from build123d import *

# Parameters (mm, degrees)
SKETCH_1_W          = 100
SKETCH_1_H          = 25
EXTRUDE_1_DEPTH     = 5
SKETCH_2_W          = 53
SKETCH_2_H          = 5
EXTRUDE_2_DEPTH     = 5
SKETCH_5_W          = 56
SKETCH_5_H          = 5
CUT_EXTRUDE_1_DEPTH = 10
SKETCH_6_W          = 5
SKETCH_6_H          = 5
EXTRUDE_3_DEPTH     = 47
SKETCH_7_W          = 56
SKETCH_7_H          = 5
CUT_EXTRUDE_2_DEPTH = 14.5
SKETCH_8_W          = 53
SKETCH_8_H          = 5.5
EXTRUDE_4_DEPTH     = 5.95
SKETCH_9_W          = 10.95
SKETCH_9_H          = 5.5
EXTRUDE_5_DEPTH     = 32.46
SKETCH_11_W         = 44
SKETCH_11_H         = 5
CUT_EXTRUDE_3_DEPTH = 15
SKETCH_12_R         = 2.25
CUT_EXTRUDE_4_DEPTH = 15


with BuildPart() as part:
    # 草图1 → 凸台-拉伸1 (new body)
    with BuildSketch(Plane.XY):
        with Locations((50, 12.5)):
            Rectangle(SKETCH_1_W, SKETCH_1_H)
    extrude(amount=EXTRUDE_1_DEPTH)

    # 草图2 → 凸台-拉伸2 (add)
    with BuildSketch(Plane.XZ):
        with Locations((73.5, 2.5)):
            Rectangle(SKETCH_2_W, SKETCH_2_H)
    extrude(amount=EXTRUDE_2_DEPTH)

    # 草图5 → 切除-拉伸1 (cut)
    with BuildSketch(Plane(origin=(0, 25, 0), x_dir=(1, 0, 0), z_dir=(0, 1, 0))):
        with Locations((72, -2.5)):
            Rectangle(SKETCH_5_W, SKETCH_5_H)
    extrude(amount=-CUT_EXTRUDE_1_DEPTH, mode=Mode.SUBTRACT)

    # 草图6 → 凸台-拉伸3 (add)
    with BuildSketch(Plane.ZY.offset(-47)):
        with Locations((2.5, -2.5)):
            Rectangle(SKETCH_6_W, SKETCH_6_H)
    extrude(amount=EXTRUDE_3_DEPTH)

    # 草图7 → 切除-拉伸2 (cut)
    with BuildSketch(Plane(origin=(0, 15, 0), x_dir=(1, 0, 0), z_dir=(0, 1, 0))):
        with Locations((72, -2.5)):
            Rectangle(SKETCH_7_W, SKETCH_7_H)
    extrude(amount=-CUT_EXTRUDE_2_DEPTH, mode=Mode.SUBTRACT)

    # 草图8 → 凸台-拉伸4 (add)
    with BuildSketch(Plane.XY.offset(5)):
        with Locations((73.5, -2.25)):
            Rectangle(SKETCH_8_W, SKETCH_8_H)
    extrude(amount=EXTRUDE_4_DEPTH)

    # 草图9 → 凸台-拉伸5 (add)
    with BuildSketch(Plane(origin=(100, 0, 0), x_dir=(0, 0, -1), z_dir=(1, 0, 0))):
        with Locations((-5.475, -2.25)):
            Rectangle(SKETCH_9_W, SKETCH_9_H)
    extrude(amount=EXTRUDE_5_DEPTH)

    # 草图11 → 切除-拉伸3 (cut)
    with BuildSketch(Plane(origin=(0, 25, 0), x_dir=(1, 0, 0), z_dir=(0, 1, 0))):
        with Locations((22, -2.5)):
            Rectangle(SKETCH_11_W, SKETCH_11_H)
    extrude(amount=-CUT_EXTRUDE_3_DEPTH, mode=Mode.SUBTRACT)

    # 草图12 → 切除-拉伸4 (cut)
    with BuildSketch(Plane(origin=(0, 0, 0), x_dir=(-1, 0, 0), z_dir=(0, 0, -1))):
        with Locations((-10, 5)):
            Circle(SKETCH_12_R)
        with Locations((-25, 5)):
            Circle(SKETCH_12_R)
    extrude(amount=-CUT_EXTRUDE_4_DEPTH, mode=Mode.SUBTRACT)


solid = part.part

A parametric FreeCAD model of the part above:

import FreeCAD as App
import Part
import Sketcher
from FreeCAD import Vector
Q = App.Units.Quantity

doc = App.newDocument("Part")
body = doc.addObject("PartDesign::Body", "Body")

# Sketch on XY plane
sketch1 = body.newObject("Sketcher::SketchObject", "Sketch")
sketch1.AttachmentSupport = (doc.getObject("XY_Plane"), [""])
sketch1.MapMode = "FlatFace"
sketch1.addGeometry(Part.LineSegment(Vector(0, 25, 0), Vector(0, 0, 0)), False)
sketch1.addGeometry(Part.LineSegment(Vector(0, 0, 0), Vector(100, 0, 0)), False)
sketch1.addGeometry(Part.LineSegment(Vector(100, 0, 0), Vector(100, 25, 0)), False)
sketch1.addGeometry(Part.LineSegment(Vector(100, 25, 0), Vector(0, 25, 0)), False)
sketch1.addConstraint(Sketcher.Constraint("Coincident", 0, 2, 1, 1))
sketch1.addConstraint(Sketcher.Constraint("Coincident", 1, 2, 2, 1))
sketch1.addConstraint(Sketcher.Constraint("Coincident", 2, 2, 3, 1))
sketch1.addConstraint(Sketcher.Constraint("Coincident", 3, 2, 0, 1))
sketch1.addConstraint(Sketcher.Constraint("Vertical", 0))
sketch1.addConstraint(Sketcher.Constraint("Horizontal", 1))
sketch1.addConstraint(Sketcher.Constraint("Vertical", 2))
sketch1.addConstraint(Sketcher.Constraint("Horizontal", 3))
sketch1.addConstraint(Sketcher.Constraint("Coincident", 0, 2, -1, 1))
sketch1.addConstraint(Sketcher.Constraint("DistanceX", 1, 1, 1, 2, Q("100 mm")))
sketch1.addConstraint(Sketcher.Constraint("DistanceY", 0, 2, 0, 1, Q("25 mm")))
pad1 = body.newObject("PartDesign::Pad", "Pad")
pad1.Profile = sketch1
pad1.Length = 5

# Sketch on XZ plane
sketch2 = body.newObject("Sketcher::SketchObject", "Sketch001")
sketch2.AttachmentSupport = (doc.getObject("XZ_Plane"), [""])
sketch2.MapMode = "FlatFace"
sketch2.addGeometry(Part.LineSegment(Vector(47, 5, 0), Vector(47, 0, 0)), False)
sketch2.addGeometry(Part.LineSegment(Vector(47, 0, 0), Vector(100, 0, 0)), False)
sketch2.addGeometry(Part.LineSegment(Vector(100, 0, 0), Vector(100, 5, 0)), False)
sketch2.addGeometry(Part.LineSegment(Vector(100, 5, 0), Vector(47, 5, 0)), False)
sketch2.addConstraint(Sketcher.Constraint("Coincident", 0, 2, 1, 1))
sketch2.addConstraint(Sketcher.Constraint("Coincident", 1, 2, 2, 1))
sketch2.addConstraint(Sketcher.Constraint("Coincident", 2, 2, 3, 1))
sketch2.addConstraint(Sketcher.Constraint("Coincident", 3, 2, 0, 1))
sketch2.addConstraint(Sketcher.Constraint("Vertical", 0))
sketch2.addConstraint(Sketcher.Constraint("Horizontal", 1))
sketch2.addConstraint(Sketcher.Constraint("Vertical", 2))
sketch2.addConstraint(Sketcher.Constraint("Horizontal", 3))
sketch2.addConstraint(Sketcher.Constraint("PointOnObject", 0, 2, -1))
sketch2.addConstraint(Sketcher.Constraint("DistanceX", 1, 1, 1, 2, Q("53 mm")))
sketch2.addConstraint(Sketcher.Constraint("DistanceY", 0, 2, 0, 1, Q("5 mm")))
sketch2.addConstraint(Sketcher.Constraint("DistanceX", -1, 1, 0, 2, Q("47 mm")))
pad2 = body.newObject("PartDesign::Pad", "Pad001")
pad2.Profile = sketch2
pad2.Length = 5

# Sketch on XZ plane
sketch3 = body.newObject("Sketcher::SketchObject", "Sketch002")
sketch3.AttachmentSupport = (doc.getObject("XZ_Plane"), [""])
sketch3.MapMode = "FlatFace"
sketch3.AttachmentOffset = App.Placement(Vector(0, 0, -25), App.Rotation())
sketch3.addGeometry(Part.LineSegment(Vector(44, 0, 0), Vector(44, 5, 0)), False)
sketch3.addGeometry(Part.LineSegment(Vector(44, 5, 0), Vector(100, 5, 0)), False)
sketch3.addGeometry(Part.LineSegment(Vector(100, 5, 0), Vector(100, 0, 0)), False)
sketch3.addGeometry(Part.LineSegment(Vector(100, 0, 0), Vector(44, 0, 0)), False)
sketch3.addConstraint(Sketcher.Constraint("Coincident", 0, 2, 1, 1))
sketch3.addConstraint(Sketcher.Constraint("Coincident", 1, 2, 2, 1))
sketch3.addConstraint(Sketcher.Constraint("Coincident", 2, 2, 3, 1))
sketch3.addConstraint(Sketcher.Constraint("Coincident", 3, 2, 0, 1))
sketch3.addConstraint(Sketcher.Constraint("Vertical", 0))
sketch3.addConstraint(Sketcher.Constraint("Horizontal", 1))
sketch3.addConstraint(Sketcher.Constraint("Vertical", 2))
sketch3.addConstraint(Sketcher.Constraint("Horizontal", 3))
sketch3.addConstraint(Sketcher.Constraint("PointOnObject", 2, 2, -1))
sketch3.addConstraint(Sketcher.Constraint("DistanceX", 1, 1, 1, 2, Q("56 mm")))
sketch3.addConstraint(Sketcher.Constraint("DistanceY", 0, 1, 0, 2, Q("5 mm")))
sketch3.addConstraint(Sketcher.Constraint("DistanceX", -1, 1, 0, 2, Q("44 mm")))
pocket1 = body.newObject("PartDesign::Pocket", "Pocket")
pocket1.Profile = sketch3
pocket1.Length = 10
pocket1.Reversed = True

# Sketch on YZ plane
sketch4 = body.newObject("Sketcher::SketchObject", "Sketch003")
sketch4.AttachmentSupport = (doc.getObject("YZ_Plane"), [""])
sketch4.MapMode = "FlatFace"
sketch4.AttachmentOffset = App.Placement(Vector(0, 0, 47), App.Rotation())
sketch4.addGeometry(Part.LineSegment(Vector(0, 0, 0), Vector(-5, 0, 0)), False)
sketch4.addGeometry(Part.LineSegment(Vector(-5, 0, 0), Vector(-5, 5, 0)), False)
sketch4.addGeometry(Part.LineSegment(Vector(-5, 5, 0), Vector(0, 5, 0)), False)
sketch4.addGeometry(Part.LineSegment(Vector(0, 5, 0), Vector(0, 0, 0)), False)
sketch4.addConstraint(Sketcher.Constraint("Coincident", 0, 2, 1, 1))
sketch4.addConstraint(Sketcher.Constraint("Coincident", 1, 2, 2, 1))
sketch4.addConstraint(Sketcher.Constraint("Coincident", 2, 2, 3, 1))
sketch4.addConstraint(Sketcher.Constraint("Coincident", 3, 2, 0, 1))
sketch4.addConstraint(Sketcher.Constraint("Horizontal", 0))
sketch4.addConstraint(Sketcher.Constraint("Vertical", 1))
sketch4.addConstraint(Sketcher.Constraint("Horizontal", 2))
sketch4.addConstraint(Sketcher.Constraint("Vertical", 3))
sketch4.addConstraint(Sketcher.Constraint("Coincident", 3, 2, -1, 1))
sketch4.addConstraint(Sketcher.Constraint("Equal", 2, 1))
sketch4.addConstraint(Sketcher.Constraint("DistanceX", 0, 2, 0, 1, Q("5 mm")))
pad3 = body.newObject("PartDesign::Pad", "Pad002")
pad3.Profile = sketch4
pad3.Length = 47
pad3.Reversed = True

# Sketch on XZ plane
sketch5 = body.newObject("Sketcher::SketchObject", "Sketch004")
sketch5.AttachmentSupport = (doc.getObject("XZ_Plane"), [""])
sketch5.MapMode = "FlatFace"
sketch5.AttachmentOffset = App.Placement(Vector(0, 0, -15), App.Rotation())
sketch5.addGeometry(Part.LineSegment(Vector(44, 0, 0), Vector(44, 5, 0)), False)
sketch5.addGeometry(Part.LineSegment(Vector(44, 5, 0), Vector(100, 5, 0)), False)
sketch5.addGeometry(Part.LineSegment(Vector(100, 5, 0), Vector(100, 0, 0)), False)
sketch5.addGeometry(Part.LineSegment(Vector(100, 0, 0), Vector(44, 0, 0)), False)
sketch5.addConstraint(Sketcher.Constraint("Coincident", 0, 2, 1, 1))
sketch5.addConstraint(Sketcher.Constraint("Coincident", 1, 2, 2, 1))
sketch5.addConstraint(Sketcher.Constraint("Coincident", 2, 2, 3, 1))
sketch5.addConstraint(Sketcher.Constraint("Coincident", 3, 2, 0, 1))
sketch5.addConstraint(Sketcher.Constraint("Vertical", 0))
sketch5.addConstraint(Sketcher.Constraint("Horizontal", 1))
sketch5.addConstraint(Sketcher.Constraint("Vertical", 2))
sketch5.addConstraint(Sketcher.Constraint("Horizontal", 3))
sketch5.addConstraint(Sketcher.Constraint("PointOnObject", 2, 2, -1))
sketch5.addConstraint(Sketcher.Constraint("DistanceX", 1, 1, 1, 2, Q("56 mm")))
sketch5.addConstraint(Sketcher.Constraint("DistanceY", 0, 1, 0, 2, Q("5 mm")))
sketch5.addConstraint(Sketcher.Constraint("DistanceX", -1, 1, 0, 2, Q("44 mm")))
pocket2 = body.newObject("PartDesign::Pocket", "Pocket001")
pocket2.Profile = sketch5
pocket2.Length = 14.5
pocket2.Reversed = True

# Sketch on XY plane
sketch6 = body.newObject("Sketcher::SketchObject", "Sketch005")
sketch6.AttachmentSupport = (doc.getObject("XY_Plane"), [""])
sketch6.MapMode = "FlatFace"
sketch6.AttachmentOffset = App.Placement(Vector(0, 0, 5), App.Rotation())
sketch6.addGeometry(Part.LineSegment(Vector(47, 0.5, 0), Vector(47, -5, 0)), False)
sketch6.addGeometry(Part.LineSegment(Vector(47, -5, 0), Vector(100, -5, 0)), False)
sketch6.addGeometry(Part.LineSegment(Vector(100, -5, 0), Vector(100, 0.5, 0)), False)
sketch6.addGeometry(Part.LineSegment(Vector(100, 0.5, 0), Vector(47, 0.5, 0)), False)
sketch6.addConstraint(Sketcher.Constraint("Coincident", 0, 2, 1, 1))
sketch6.addConstraint(Sketcher.Constraint("Coincident", 1, 2, 2, 1))
sketch6.addConstraint(Sketcher.Constraint("Coincident", 2, 2, 3, 1))
sketch6.addConstraint(Sketcher.Constraint("Coincident", 3, 2, 0, 1))
sketch6.addConstraint(Sketcher.Constraint("Vertical", 0))
sketch6.addConstraint(Sketcher.Constraint("Horizontal", 1))
sketch6.addConstraint(Sketcher.Constraint("Vertical", 2))
sketch6.addConstraint(Sketcher.Constraint("Horizontal", 3))
sketch6.addConstraint(Sketcher.Constraint("DistanceX", 1, 1, 1, 2, Q("53 mm")))
sketch6.addConstraint(Sketcher.Constraint("DistanceY", 0, 2, 0, 1, Q("5.5 mm")))
sketch6.addConstraint(Sketcher.Constraint("DistanceX", -1, 1, 0, 2, Q("47 mm")))
sketch6.addConstraint(Sketcher.Constraint("DistanceY", 0, 2, -1, 1, Q("5 mm")))
pad4 = body.newObject("PartDesign::Pad", "Pad003")
pad4.Profile = sketch6
pad4.Length = 5.95

# Sketch on YZ plane
sketch7 = body.newObject("Sketcher::SketchObject", "Sketch006")
sketch7.AttachmentSupport = (doc.getObject("YZ_Plane"), [""])
sketch7.MapMode = "FlatFace"
sketch7.AttachmentOffset = App.Placement(Vector(0, 0, 100), App.Rotation())
sketch7.addGeometry(Part.LineSegment(Vector(0.5, 10.95, 0), Vector(-5, 10.95, 0)), False)
sketch7.addGeometry(Part.LineSegment(Vector(-5, 10.95, 0), Vector(-5, 0, 0)), False)
sketch7.addGeometry(Part.LineSegment(Vector(-5, 0, 0), Vector(0.5, 0, 0)), False)
sketch7.addGeometry(Part.LineSegment(Vector(0.5, 0, 0), Vector(0.5, 10.95, 0)), False)
sketch7.addConstraint(Sketcher.Constraint("Coincident", 0, 2, 1, 1))
sketch7.addConstraint(Sketcher.Constraint("Coincident", 1, 2, 2, 1))
sketch7.addConstraint(Sketcher.Constraint("Coincident", 2, 2, 3, 1))
sketch7.addConstraint(Sketcher.Constraint("Coincident", 3, 2, 0, 1))
sketch7.addConstraint(Sketcher.Constraint("Horizontal", 0))
sketch7.addConstraint(Sketcher.Constraint("Vertical", 1))
sketch7.addConstraint(Sketcher.Constraint("Horizontal", 2))
sketch7.addConstraint(Sketcher.Constraint("Vertical", 3))
sketch7.addConstraint(Sketcher.Constraint("PointOnObject", 1, 2, -1))
sketch7.addConstraint(Sketcher.Constraint("DistanceX", 0, 2, 0, 1, Q("5.5 mm")))
sketch7.addConstraint(Sketcher.Constraint("DistanceX", 0, 2, -1, 1, Q("5 mm")))
sketch7.addConstraint(Sketcher.Constraint("DistanceY", 1, 2, 1, 1, Q("10.95 mm")))
pad5 = body.newObject("PartDesign::Pad", "Pad004")
pad5.Profile = sketch7
pad5.Length = 32.46

# Sketch on XZ plane
sketch8 = body.newObject("Sketcher::SketchObject", "Sketch007")
sketch8.AttachmentSupport = (doc.getObject("XZ_Plane"), [""])
sketch8.MapMode = "FlatFace"
sketch8.AttachmentOffset = App.Placement(Vector(0, 0, -25), App.Rotation())
sketch8.addGeometry(Part.LineSegment(Vector(0, 0, 0), Vector(0, 5, 0)), False)
sketch8.addGeometry(Part.LineSegment(Vector(0, 5, 0), Vector(44, 5, 0)), False)
sketch8.addGeometry(Part.LineSegment(Vector(44, 5, 0), Vector(44, 0, 0)), False)
sketch8.addGeometry(Part.LineSegment(Vector(44, 0, 0), Vector(0, 0, 0)), False)
sketch8.addConstraint(Sketcher.Constraint("Coincident", 0, 2, 1, 1))
sketch8.addConstraint(Sketcher.Constraint("Coincident", 1, 2, 2, 1))
sketch8.addConstraint(Sketcher.Constraint("Coincident", 2, 2, 3, 1))
sketch8.addConstraint(Sketcher.Constraint("Coincident", 3, 2, 0, 1))
sketch8.addConstraint(Sketcher.Constraint("Vertical", 0))
sketch8.addConstraint(Sketcher.Constraint("Horizontal", 1))
sketch8.addConstraint(Sketcher.Constraint("Vertical", 2))
sketch8.addConstraint(Sketcher.Constraint("Horizontal", 3))
sketch8.addConstraint(Sketcher.Constraint("Coincident", 3, 2, -1, 1))
sketch8.addConstraint(Sketcher.Constraint("DistanceX", 1, 1, 1, 2, Q("44 mm")))
sketch8.addConstraint(Sketcher.Constraint("DistanceY", 0, 1, 0, 2, Q("5 mm")))
pocket3 = body.newObject("PartDesign::Pocket", "Pocket002")
pocket3.Profile = sketch8
pocket3.Length = 15
pocket3.Reversed = True

# Sketch on XY plane
sketch9 = body.newObject("Sketcher::SketchObject", "Sketch008")
sketch9.AttachmentSupport = (doc.getObject("XY_Plane"), [""])
sketch9.MapMode = "FlatFace"
sketch9.addGeometry(Part.Circle(Vector(10, 5, 0), Vector(0, 0, 1), 2.25), False)
sketch9.addGeometry(Part.Circle(Vector(25, 5, 0), Vector(0, 0, 1), 2.25), False)
sketch9.addConstraint(Sketcher.Constraint("Equal", 0, 1))
sketch9.addConstraint(Sketcher.Constraint("Horizontal", 0, 3, 1, 3))
sketch9.addConstraint(Sketcher.Constraint("Diameter", 0, Q("4.5 mm")))
sketch9.addConstraint(Sketcher.Constraint("DistanceX", -1, 1, 0, 3, Q("10 mm")))
sketch9.addConstraint(Sketcher.Constraint("DistanceY", -1, 1, 0, 3, Q("5 mm")))
sketch9.addConstraint(Sketcher.Constraint("DistanceX", -1, 1, 1, 3, Q("25 mm")))
pocket4 = body.newObject("PartDesign::Pocket", "Pocket003")
pocket4.Profile = sketch9
pocket4.Length = 15
pocket4.Reversed = True

doc.recompute()
